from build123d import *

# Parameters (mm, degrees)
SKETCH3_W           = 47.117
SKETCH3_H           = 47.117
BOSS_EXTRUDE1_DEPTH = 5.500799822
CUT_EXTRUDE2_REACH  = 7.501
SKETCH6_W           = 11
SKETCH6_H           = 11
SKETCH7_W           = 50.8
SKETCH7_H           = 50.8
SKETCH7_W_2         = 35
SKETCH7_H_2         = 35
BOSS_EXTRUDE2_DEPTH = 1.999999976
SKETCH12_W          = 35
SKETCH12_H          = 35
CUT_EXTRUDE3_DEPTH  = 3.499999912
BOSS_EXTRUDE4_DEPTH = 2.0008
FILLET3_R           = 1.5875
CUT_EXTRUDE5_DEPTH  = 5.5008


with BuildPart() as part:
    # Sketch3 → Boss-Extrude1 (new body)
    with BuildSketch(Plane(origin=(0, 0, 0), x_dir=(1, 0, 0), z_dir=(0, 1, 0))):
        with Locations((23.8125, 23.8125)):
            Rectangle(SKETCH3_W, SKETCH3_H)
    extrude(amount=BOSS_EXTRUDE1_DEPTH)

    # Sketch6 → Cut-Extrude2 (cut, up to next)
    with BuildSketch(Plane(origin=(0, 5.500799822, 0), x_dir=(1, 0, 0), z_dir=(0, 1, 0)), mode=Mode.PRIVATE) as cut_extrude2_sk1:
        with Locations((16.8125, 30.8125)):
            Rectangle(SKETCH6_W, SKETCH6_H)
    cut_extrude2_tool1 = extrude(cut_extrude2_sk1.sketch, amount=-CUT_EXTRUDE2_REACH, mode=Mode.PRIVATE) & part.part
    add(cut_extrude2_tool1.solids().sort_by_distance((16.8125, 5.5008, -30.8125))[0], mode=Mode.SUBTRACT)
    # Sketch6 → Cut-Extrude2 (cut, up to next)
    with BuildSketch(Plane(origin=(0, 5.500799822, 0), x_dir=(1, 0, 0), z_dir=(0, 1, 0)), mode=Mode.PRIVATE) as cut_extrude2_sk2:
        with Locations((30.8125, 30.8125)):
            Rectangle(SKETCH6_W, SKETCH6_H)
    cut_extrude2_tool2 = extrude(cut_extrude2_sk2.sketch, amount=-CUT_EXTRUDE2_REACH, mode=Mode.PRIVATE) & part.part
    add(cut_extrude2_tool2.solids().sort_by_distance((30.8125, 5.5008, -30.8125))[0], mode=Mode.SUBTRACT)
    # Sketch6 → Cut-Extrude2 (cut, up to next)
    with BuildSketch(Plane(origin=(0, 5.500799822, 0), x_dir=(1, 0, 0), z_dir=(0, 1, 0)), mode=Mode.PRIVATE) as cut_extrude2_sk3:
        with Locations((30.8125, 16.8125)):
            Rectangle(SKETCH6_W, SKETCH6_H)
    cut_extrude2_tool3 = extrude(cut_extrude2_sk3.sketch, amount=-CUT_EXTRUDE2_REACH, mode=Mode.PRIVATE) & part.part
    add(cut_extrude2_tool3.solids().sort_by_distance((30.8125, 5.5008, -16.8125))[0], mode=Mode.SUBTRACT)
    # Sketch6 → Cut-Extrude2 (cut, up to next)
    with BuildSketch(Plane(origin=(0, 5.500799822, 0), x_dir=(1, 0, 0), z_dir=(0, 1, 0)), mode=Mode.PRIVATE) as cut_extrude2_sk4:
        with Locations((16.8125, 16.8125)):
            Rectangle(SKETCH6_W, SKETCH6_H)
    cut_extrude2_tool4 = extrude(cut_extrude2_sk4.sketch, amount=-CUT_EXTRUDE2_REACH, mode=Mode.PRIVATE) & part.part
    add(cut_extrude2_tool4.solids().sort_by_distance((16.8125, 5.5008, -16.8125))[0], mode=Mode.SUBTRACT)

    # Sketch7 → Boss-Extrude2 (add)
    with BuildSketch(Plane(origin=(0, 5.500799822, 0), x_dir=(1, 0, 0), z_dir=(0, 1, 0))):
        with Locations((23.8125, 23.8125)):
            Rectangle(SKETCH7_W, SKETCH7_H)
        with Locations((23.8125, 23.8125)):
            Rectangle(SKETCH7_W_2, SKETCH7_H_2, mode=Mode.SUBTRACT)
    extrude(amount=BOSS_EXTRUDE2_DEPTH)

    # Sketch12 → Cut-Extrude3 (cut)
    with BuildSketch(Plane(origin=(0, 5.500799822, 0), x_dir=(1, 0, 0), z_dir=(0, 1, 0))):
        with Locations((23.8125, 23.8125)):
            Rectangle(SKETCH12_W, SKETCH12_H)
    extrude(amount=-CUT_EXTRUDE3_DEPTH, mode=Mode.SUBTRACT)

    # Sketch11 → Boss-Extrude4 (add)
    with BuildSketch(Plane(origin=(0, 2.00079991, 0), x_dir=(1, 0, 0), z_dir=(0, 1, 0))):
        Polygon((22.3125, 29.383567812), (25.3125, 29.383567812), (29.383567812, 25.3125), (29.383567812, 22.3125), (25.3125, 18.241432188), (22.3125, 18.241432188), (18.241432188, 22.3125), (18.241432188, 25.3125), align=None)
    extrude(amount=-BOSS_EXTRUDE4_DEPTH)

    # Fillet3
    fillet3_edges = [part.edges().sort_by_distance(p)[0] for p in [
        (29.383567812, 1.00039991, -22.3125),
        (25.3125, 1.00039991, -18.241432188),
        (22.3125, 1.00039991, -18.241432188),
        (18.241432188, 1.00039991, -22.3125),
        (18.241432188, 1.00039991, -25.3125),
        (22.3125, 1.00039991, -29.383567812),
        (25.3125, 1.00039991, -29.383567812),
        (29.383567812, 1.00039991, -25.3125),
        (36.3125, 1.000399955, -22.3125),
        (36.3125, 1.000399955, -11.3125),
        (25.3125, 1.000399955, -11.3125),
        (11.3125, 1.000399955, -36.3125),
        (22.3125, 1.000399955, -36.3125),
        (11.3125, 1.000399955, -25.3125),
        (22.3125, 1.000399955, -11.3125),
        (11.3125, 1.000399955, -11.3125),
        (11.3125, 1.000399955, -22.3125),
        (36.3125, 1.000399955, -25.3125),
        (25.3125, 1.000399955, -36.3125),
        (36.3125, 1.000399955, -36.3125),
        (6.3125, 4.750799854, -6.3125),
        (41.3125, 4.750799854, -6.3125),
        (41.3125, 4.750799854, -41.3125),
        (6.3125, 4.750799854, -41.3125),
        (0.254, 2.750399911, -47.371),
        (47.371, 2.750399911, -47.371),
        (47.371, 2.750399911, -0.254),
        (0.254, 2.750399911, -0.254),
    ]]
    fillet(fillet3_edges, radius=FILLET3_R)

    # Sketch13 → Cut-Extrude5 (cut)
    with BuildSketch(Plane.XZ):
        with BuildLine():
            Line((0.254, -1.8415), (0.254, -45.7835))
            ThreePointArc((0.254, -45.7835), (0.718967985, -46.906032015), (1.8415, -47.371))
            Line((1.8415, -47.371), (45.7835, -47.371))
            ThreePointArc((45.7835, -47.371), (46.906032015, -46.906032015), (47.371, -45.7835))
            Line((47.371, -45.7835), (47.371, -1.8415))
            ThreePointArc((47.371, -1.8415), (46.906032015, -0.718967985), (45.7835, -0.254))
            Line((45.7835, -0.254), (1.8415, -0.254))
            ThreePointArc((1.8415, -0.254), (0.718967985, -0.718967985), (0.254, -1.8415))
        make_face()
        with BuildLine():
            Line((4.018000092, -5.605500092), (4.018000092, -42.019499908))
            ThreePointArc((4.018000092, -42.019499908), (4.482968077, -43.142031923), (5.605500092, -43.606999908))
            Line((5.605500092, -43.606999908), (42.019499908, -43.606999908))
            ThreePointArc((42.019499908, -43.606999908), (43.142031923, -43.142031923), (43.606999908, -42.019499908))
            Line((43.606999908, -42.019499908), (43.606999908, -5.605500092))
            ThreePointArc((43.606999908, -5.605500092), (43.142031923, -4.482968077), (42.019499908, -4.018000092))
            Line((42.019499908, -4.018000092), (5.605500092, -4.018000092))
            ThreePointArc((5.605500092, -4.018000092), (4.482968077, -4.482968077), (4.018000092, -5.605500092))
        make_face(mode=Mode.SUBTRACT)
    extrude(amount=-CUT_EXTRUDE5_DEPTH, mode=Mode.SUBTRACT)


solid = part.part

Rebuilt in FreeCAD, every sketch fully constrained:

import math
import FreeCAD as App
import Part
import Sketcher
from FreeCAD import Vector
Q = App.Units.Quantity


def edges_at(feature, points):
    """Names of the edges that pass closest to the given points."""
    edges = feature.Shape.Edges
    near = lambda p: min(range(len(edges)), key=lambda i: edges[i].distToShape(Part.Vertex(*p))[0])
    return sorted({f"Edge{near(p) + 1}" for p in points})

doc = App.newDocument("Part")
body = doc.addObject("PartDesign::Body", "Body")

# Sketch on XZ plane
sketch1 = doc.addObject("Sketcher::SketchObject", "Sketch")
body.addObject(sketch1)
sketch1.AttachmentSupport = (doc.XZ_Plane, [""])
sketch1.MapMode = "FlatFace"
sketch1.addGeometry([
    Part.LineSegment(Vector(0.254, -47.371, 0), Vector(0.254, -0.254, 0)),
    Part.LineSegment(Vector(0.254, -0.254, 0), Vector(47.371, -0.254, 0)),
    Part.LineSegment(Vector(47.371, -0.254, 0), Vector(47.371, -47.371, 0)),
    Part.LineSegment(Vector(47.371, -47.371, 0), Vector(0.254, -47.371, 0)),
], False)
sketch1.addConstraint([
    Sketcher.Constraint("Coincident", 0, 2, 1, 1),
    Sketcher.Constraint("Coincident", 1, 2, 2, 1),
    Sketcher.Constraint("Coincident", 2, 2, 3, 1),
    Sketcher.Constraint("Coincident", 3, 2, 0, 1),
    Sketcher.Constraint("Vertical", 0),
    Sketcher.Constraint("Horizontal", 1),
    Sketcher.Constraint("Vertical", 2),
    Sketcher.Constraint("Horizontal", 3),
    Sketcher.Constraint("Equal", 3, 0),
    Sketcher.Constraint("DistanceX", 1, 1, 1, 2, Q("47.117 mm")),
    Sketcher.Constraint("DistanceX", -1, 1, 0, 2, Q("0.254 mm")),
    Sketcher.Constraint("DistanceY", 0, 2, -1, 1, Q("0.254 mm")),
])
pad1 = doc.addObject("PartDesign::Pad", "Pad")
body.addObject(pad1)
pad1.Profile = sketch1
pad1.Length = 5.5008
pad1.Reversed = True

# Sketch on XZ plane
sketch2 = doc.addObject("Sketcher::SketchObject", "Sketch001")
body.addObject(sketch2)
sketch2.AttachmentSupport = (doc.XZ_Plane, [""])
sketch2.MapMode = "FlatFace"
sketch2.AttachmentOffset = App.Placement(Vector(0, 0, -5.5008), App.Rotation())
sketch2.addGeometry([
    Part.LineSegment(Vector(11.3125, -36.3125, 0), Vector(11.3125, -25.3125, 0)),
    Part.LineSegment(Vector(11.3125, -25.3125, 0), Vector(22.3125, -25.3125, 0)),
    Part.LineSegment(Vector(22.3125, -25.3125, 0), Vector(22.3125, -36.3125, 0)),
    Part.LineSegment(Vector(22.3125, -36.3125, 0), Vector(11.3125, -36.3125, 0)),
], False)
sketch2.addConstraint([
    Sketcher.Constraint("Coincident", 0, 2, 1, 1),
    Sketcher.Constraint("Coincident", 1, 2, 2, 1),
    Sketcher.Constraint("Coincident", 2, 2, 3, 1),
    Sketcher.Constraint("Coincident", 3, 2, 0, 1),
    Sketcher.Constraint("Vertical", 0),
    Sketcher.Constraint("Horizontal", 1),
    Sketcher.Constraint("Vertical", 2),
    Sketcher.Constraint("Horizontal", 3),
    Sketcher.Constraint("Equal", 3, 0),
    Sketcher.Constraint("DistanceX", 1, 1, 1, 2, Q("11 mm")),
    Sketcher.Constraint("DistanceX", -1, 1, 0, 2, Q("11.3125 mm")),
    Sketcher.Constraint("DistanceY", 0, 2, -1, 1, Q("25.3125 mm")),
])
pocket1 = doc.addObject("PartDesign::Pocket", "Pocket")
body.addObject(pocket1)
pocket1.Profile = sketch2
pocket1.Type = "UpToFirst"
pocket1.Reversed = True

# Sketch on XZ plane
sketch3 = doc.addObject("Sketcher::SketchObject", "Sketch002")
body.addObject(sketch3)
sketch3.AttachmentSupport = (doc.XZ_Plane, [""])
sketch3.MapMode = "FlatFace"
sketch3.AttachmentOffset = App.Placement(Vector(0, 0, -5.5008), App.Rotation())
sketch3.addGeometry([
    Part.LineSegment(Vector(25.3125, -36.3125, 0), Vector(25.3125, -25.3125, 0)),
    Part.LineSegment(Vector(25.3125, -25.3125, 0), Vector(36.3125, -25.3125, 0)),
    Part.LineSegment(Vector(36.3125, -25.3125, 0), Vector(36.3125, -36.3125, 0)),
    Part.LineSegment(Vector(36.3125, -36.3125, 0), Vector(25.3125, -36.3125, 0)),
], False)
sketch3.addConstraint([
    Sketcher.Constraint("Coincident", 0, 2, 1, 1),
    Sketcher.Constraint("Coincident", 1, 2, 2, 1),
    Sketcher.Constraint("Coincident", 2, 2, 3, 1),
    Sketcher.Constraint("Coincident", 3, 2, 0, 1),
    Sketcher.Constraint("Vertical", 0),
    Sketcher.Constraint("Horizontal", 1),
    Sketcher.Constraint("Vertical", 2),
    Sketcher.Constraint("Horizontal", 3),
    Sketcher.Constraint("Equal", 3, 0),
    Sketcher.Constraint("DistanceX", 1, 1, 1, 2, Q("11 mm")),
    Sketcher.Constraint("DistanceX", -1, 1, 0, 2, Q("25.3125 mm")),
    Sketcher.Constraint("DistanceY", 0, 2, -1, 1, Q("25.3125 mm")),
])
pocket2 = doc.addObject("PartDesign::Pocket", "Pocket001")
body.addObject(pocket2)
pocket2.Profile = sketch3
pocket2.Type = "UpToFirst"
pocket2.Reversed = True

# Sketch on XZ plane
sketch4 = doc.addObject("Sketcher::SketchObject", "Sketch003")
body.addObject(sketch4)
sketch4.AttachmentSupport = (doc.XZ_Plane, [""])
sketch4.MapMode = "FlatFace"
sketch4.AttachmentOffset = App.Placement(Vector(0, 0, -5.5008), App.Rotation())
sketch4.addGeometry([
    Part.LineSegment(Vector(25.3125, -22.3125, 0), Vector(25.3125, -11.3125, 0)),
    Part.LineSegment(Vector(25.3125, -11.3125, 0), Vector(36.3125, -11.3125, 0)),
    Part.LineSegment(Vector(36.3125, -11.3125, 0), Vector(36.3125, -22.3125, 0)),
    Part.LineSegment(Vector(36.3125, -22.3125, 0), Vector(25.3125, -22.3125, 0)),
], False)
sketch4.addConstraint([
    Sketcher.Constraint("Coincident", 0, 2, 1, 1),
    Sketcher.Constraint("Coincident", 1, 2, 2, 1),
    Sketcher.Constraint("Coincident", 2, 2, 3, 1),
    Sketcher.Constraint("Coincident", 3, 2, 0, 1),
    Sketcher.Constraint("Vertical", 0),
    Sketcher.Constraint("Horizontal", 1),
    Sketcher.Constraint("Vertical", 2),
    Sketcher.Constraint("Horizontal", 3),
    Sketcher.Constraint("Equal", 3, 0),
    Sketcher.Constraint("DistanceX", 1, 1, 1, 2, Q("11 mm")),
    Sketcher.Constraint("DistanceX", -1, 1, 0, 2, Q("25.3125 mm")),
    Sketcher.Constraint("DistanceY", 0, 2, -1, 1, Q("11.3125 mm")),
])
pocket3 = doc.addObject("PartDesign::Pocket", "Pocket002")
body.addObject(pocket3)
pocket3.Profile = sketch4
pocket3.Type = "UpToFirst"
pocket3.Reversed = True

# Sketch on XZ plane
sketch5 = doc.addObject("Sketcher::SketchObject", "Sketch004")
body.addObject(sketch5)
sketch5.AttachmentSupport = (doc.XZ_Plane, [""])
sketch5.MapMode = "FlatFace"
sketch5.AttachmentOffset = App.Placement(Vector(0, 0, -5.5008), App.Rotation())
sketch5.addGeometry([
    Part.LineSegment(Vector(11.3125, -22.3125, 0), Vector(11.3125, -11.3125, 0)),
    Part.LineSegment(Vector(11.3125, -11.3125, 0), Vector(22.3125, -11.3125, 0)),
    Part.LineSegment(Vector(22.3125, -11.3125, 0), Vector(22.3125, -22.3125, 0)),
    Part.LineSegment(Vector(22.3125, -22.3125, 0), Vector(11.3125, -22.3125, 0)),
], False)
sketch5.addConstraint([
    Sketcher.Constraint("Coincident", 0, 2, 1, 1),
    Sketcher.Constraint("Coincident", 1, 2, 2, 1),
    Sketcher.Constraint("Coincident", 2, 2, 3, 1),
    Sketcher.Constraint("Coincident", 3, 2, 0, 1),
    Sketcher.Constraint("Vertical", 0),
    Sketcher.Constraint("Horizontal", 1),
    Sketcher.Constraint("Vertical", 2),
    Sketcher.Constraint("Horizontal", 3),
    Sketcher.Constraint("Equal", 3, 0),
    Sketcher.Constraint("DistanceX", 1, 1, 1, 2, Q("11 mm")),
    Sketcher.Constraint("DistanceX", -1, 1, 0, 2, Q("11.3125 mm")),
    Sketcher.Constraint("DistanceY", 0, 2, -1, 1, Q("11.3125 mm")),
])
pocket4 = doc.addObject("PartDesign::Pocket", "Pocket003")
body.addObject(pocket4)
pocket4.Profile = sketch5
pocket4.Type = "UpToFirst"
pocket4.Reversed = True

# Sketch on XZ plane
sketch6 = doc.addObject("Sketcher::SketchObject", "Sketch005")
body.addObject(sketch6)
sketch6.AttachmentSupport = (doc.XZ_Plane, [""])
sketch6.MapMode = "FlatFace"
sketch6.AttachmentOffset = App.Placement(Vector(0, 0, -5.5008), App.Rotation())
sketch6.addGeometry([
    Part.LineSegment(Vector(-1.5875, -49.2125, 0), Vector(-1.5875, 1.5875, 0)),  # 0
    Part.LineSegment(Vector(-1.5875, 1.5875, 0), Vector(49.2125, 1.5875, 0)),  # 1
    Part.LineSegment(Vector(49.2125, 1.5875, 0), Vector(49.2125, -49.2125, 0)),  # 2
    Part.LineSegment(Vector(49.2125, -49.2125, 0), Vector(-1.5875, -49.2125, 0)),  # 3
    Part.LineSegment(Vector(41.3125, -6.3125, 0), Vector(6.3125, -6.3125, 0)),  # 4
    Part.LineSegment(Vector(6.3125, -6.3125, 0), Vector(6.3125, -41.3125, 0)),  # 5
    Part.LineSegment(Vector(6.3125, -41.3125, 0), Vector(41.3125, -41.3125, 0)),  # 6
    Part.LineSegment(Vector(41.3125, -41.3125, 0), Vector(41.3125, -6.3125, 0)),  # 7
], False)
sketch6.addConstraint([
    Sketcher.Constraint("Coincident", 0, 2, 1, 1),
    Sketcher.Constraint("Coincident", 1, 2, 2, 1),
    Sketcher.Constraint("Coincident", 2, 2, 3, 1),
    Sketcher.Constraint("Coincident", 3, 2, 0, 1),
    Sketcher.Constraint("Coincident", 4, 2, 5, 1),
    Sketcher.Constraint("Coincident", 5, 2, 6, 1),
    Sketcher.Constraint("Coincident", 6, 2, 7, 1),
    Sketcher.Constraint("Coincident", 7, 2, 4, 1),
    Sketcher.Constraint("Vertical", 0),
    Sketcher.Constraint("Horizontal", 1),
    Sketcher.Constraint("Vertical", 2),
    Sketcher.Constraint("Horizontal", 3),
    Sketcher.Constraint("Horizontal", 4),
    Sketcher.Constraint("Vertical", 5),
    Sketcher.Constraint("Horizontal", 6),
    Sketcher.Constraint("Vertical", 7),
    Sketcher.Constraint("Equal", 3, 0),
    Sketcher.Constraint("Equal", 6, 5),
    Sketcher.Constraint("DistanceX", 4, 2, 4, 1, Q("35 mm")),
    Sketcher.Constraint("DistanceX", 1, 1, 1, 2, Q("50.8 mm")),
    Sketcher.Constraint("DistanceX", 0, 2, 4, 2, Q("7.9 mm")),
    Sketcher.Constraint("DistanceY", 4, 2, 0, 2, Q("7.9 mm")),
    Sketcher.Constraint("DistanceX", 0, 2, -1, 1, Q("1.5875 mm")),
    Sketcher.Constraint("DistanceY", -1, 1, 0, 2, Q("1.5875 mm")),
])
pad2 = doc.addObject("PartDesign::Pad", "Pad001")
body.addObject(pad2)
pad2.Profile = sketch6
pad2.Length = 2
pad2.Reversed = True

# Sketch on XZ plane
sketch7 = doc.addObject("Sketcher::SketchObject", "Sketch006")
body.addObject(sketch7)
sketch7.AttachmentSupport = (doc.XZ_Plane, [""])
sketch7.MapMode = "FlatFace"
sketch7.AttachmentOffset = App.Placement(Vector(0, 0, -5.5008), App.Rotation())
sketch7.addGeometry([
    Part.LineSegment(Vector(6.3125, -41.3125, 0), Vector(6.3125, -6.3125, 0)),
    Part.LineSegment(Vector(6.3125, -6.3125, 0), Vector(41.3125, -6.3125, 0)),
    Part.LineSegment(Vector(41.3125, -6.3125, 0), Vector(41.3125, -41.3125, 0)),
    Part.LineSegment(Vector(41.3125, -41.3125, 0), Vector(6.3125, -41.3125, 0)),
], False)
sketch7.addConstraint([
    Sketcher.Constraint("Coincident", 0, 2, 1, 1),
    Sketcher.Constraint("Coincident", 1, 2, 2, 1),
    Sketcher.Constraint("Coincident", 2, 2, 3, 1),
    Sketcher.Constraint("Coincident", 3, 2, 0, 1),
    Sketcher.Constraint("Vertical", 0),
    Sketcher.Constraint("Horizontal", 1),
    Sketcher.Constraint("Vertical", 2),
    Sketcher.Constraint("Horizontal", 3),
    Sketcher.Constraint("Equal", 3, 0),
    Sketcher.Constraint("DistanceX", 1, 1, 1, 2, Q("35 mm")),
    Sketcher.Constraint("DistanceX", -1, 1, 0, 2, Q("6.3125 mm")),
    Sketcher.Constraint("DistanceY", 0, 2, -1, 1, Q("6.3125 mm")),
])
pocket5 = doc.addObject("PartDesign::Pocket", "Pocket004")
body.addObject(pocket5)
pocket5.Profile = sketch7
pocket5.Length = 3.5
pocket5.Reversed = True

# Sketch on XZ plane
sketch8 = doc.addObject("Sketcher::SketchObject", "Sketch007")
body.addObject(sketch8)
sketch8.AttachmentSupport = (doc.XZ_Plane, [""])
sketch8.MapMode = "FlatFace"
sketch8.AttachmentOffset = App.Placement(Vector(0, 0, -2.0008), App.Rotation())
sketch8.addGeometry([
    Part.LineSegment(Vector(25.3125, -29.383568, 0), Vector(22.3125, -29.383568, 0)),  # 0
    Part.LineSegment(Vector(22.3125, -29.383568, 0), Vector(18.241432, -25.3125, 0)),  # 1
    Part.LineSegment(Vector(18.241432, -25.3125, 0), Vector(18.241432, -22.3125, 0)),  # 2
    Part.LineSegment(Vector(18.241432, -22.3125, 0), Vector(22.3125, -18.241432, 0)),  # 3
    Part.LineSegment(Vector(22.3125, -18.241432, 0), Vector(25.3125, -18.241432, 0)),  # 4
    Part.LineSegment(Vector(25.3125, -18.241432, 0), Vector(29.383568, -22.3125, 0)),  # 5
    Part.LineSegment(Vector(29.383568, -22.3125, 0), Vector(29.383568, -25.3125, 0)),  # 6
    Part.LineSegment(Vector(29.383568, -25.3125, 0), Vector(25.3125, -29.383568, 0)),  # 7
], False)
sketch8.addConstraint([
    Sketcher.Constraint("Coincident", 0, 2, 1, 1),
    Sketcher.Constraint("Coincident", 1, 2, 2, 1),
    Sketcher.Constraint("Coincident", 2, 2, 3, 1),
    Sketcher.Constraint("Coincident", 3, 2, 4, 1),
    Sketcher.Constraint("Coincident", 4, 2, 5, 1),
    Sketcher.Constraint("Coincident", 5, 2, 6, 1),
    Sketcher.Constraint("Coincident", 6, 2, 7, 1),
    Sketcher.Constraint("Coincident", 7, 2, 0, 1),
    Sketcher.Constraint("Horizontal", 0),
    Sketcher.Constraint("Vertical", 2),
    Sketcher.Constraint("Horizontal", 4),
    Sketcher.Constraint("Vertical", 6),
    Sketcher.Constraint("Perpendicular", 1, 3),
    Sketcher.Constraint("Perpendicular", 3, 5),
    Sketcher.Constraint("Perpendicular", 5, 7),
    Sketcher.Constraint("Horizontal", 2, 2, 5, 2),
    Sketcher.Constraint("Horizontal", 1, 2, 6, 2),
    Sketcher.Constraint("Vertical", 0, 2, 3, 2),
    Sketcher.Constraint("Vertical", 4, 2, 7, 2),
    Sketcher.Constraint("Equal", 4, 2),
    Sketcher.Constraint("DistanceX", 0, 2, 0, 1, Q("3 mm")),
    Sketcher.Constraint("DistanceX", -1, 1, 0, 2, Q("22.3125 mm")),
    Sketcher.Constraint("DistanceY", 1, 2, -1, 1, Q("25.3125 mm")),
    Sketcher.Constraint("Distance", 1, Q("5.757359 mm")),
])
pad3 = doc.addObject("PartDesign::Pad", "Pad002")
body.addObject(pad3)
pad3.Profile = sketch8
pad3.Length = 2.0008
doc.recompute()

fillet = doc.addObject("PartDesign::Fillet", "Fillet")
body.addObject(fillet)
fillet.Base = (pad3, edges_at(pad3, [
    (29.384, 1, -22.312),
    (25.312, 1, -18.241),
    (22.312, 1, -18.241),
    (18.241, 1, -22.312),
    (18.241, 1, -25.312),
    (22.312, 1, -29.384),
    (25.312, 1, -29.384),
    (29.384, 1, -25.312),
    (36.312, 1, -22.312),
    (36.312, 1, -11.312),
    (25.312, 1, -11.312),
    (11.312, 1, -36.312),
    (22.312, 1, -36.312),
    (11.312, 1, -25.312),
    (22.312, 1, -11.312),
    (11.312, 1, -11.312),
    (11.312, 1, -22.312),
    (36.312, 1, -25.312),
    (25.312, 1, -36.312),
    (36.312, 1, -36.312),
    (6.312, 4.751, -6.312),
    (41.312, 4.751, -6.312),
    (41.312, 4.751, -41.312),
    (6.312, 4.751, -41.312),
    (0.254, 2.75, -47.371),
    (47.371, 2.75, -47.371),
    (47.371, 2.75, -0.254),
    (0.254, 2.75, -0.254),
]))
fillet.Radius = 1.5875

# Sketch on XZ plane
sketch9 = doc.addObject("Sketcher::SketchObject", "Sketch008")
body.addObject(sketch9)
sketch9.AttachmentSupport = (doc.XZ_Plane, [""])
sketch9.MapMode = "FlatFace"
sketch9.addGeometry([
    Part.LineSegment(Vector(0.254, -1.8415, 0), Vector(0.254, -45.7835, 0)),  # 0
    Part.ArcOfCircle(Part.Circle(Vector(1.8415, -45.7835, 0), Vector(0, 0, 1), 1.5875), math.radians(180), math.radians(270)),  # 1
    Part.LineSegment(Vector(1.8415, -47.371, 0), Vector(45.7835, -47.371, 0)),  # 2
    Part.ArcOfCircle(Part.Circle(Vector(45.7835, -45.7835, 0), Vector(0, 0, 1), 1.5875), math.radians(-90), math.radians(0)),  # 3
    Part.LineSegment(Vector(47.371, -45.7835, 0), Vector(47.371, -1.8415, 0)),  # 4
    Part.ArcOfCircle(Part.Circle(Vector(45.7835, -1.8415, 0), Vector(0, 0, 1), 1.5875), math.radians(0), math.radians(90)),  # 5
    Part.LineSegment(Vector(45.7835, -0.254, 0), Vector(1.8415, -0.254, 0)),  # 6
    Part.ArcOfCircle(Part.Circle(Vector(1.8415, -1.8415, 0), Vector(0, 0, 1), 1.5875), math.radians(90), math.radians(180)),  # 7
    Part.LineSegment(Vector(4.018, -42.0195, 0), Vector(4.018, -5.6055, 0)),  # 8
    Part.ArcOfCircle(Part.Circle(Vector(5.6055, -5.6055, 0), Vector(0, 0, 1), 1.5875), math.radians(90), math.radians(180)),  # 9
    Part.LineSegment(Vector(5.6055, -4.018, 0), Vector(42.0195, -4.018, 0)),  # 10
    Part.ArcOfCircle(Part.Circle(Vector(42.0195, -5.6055, 0), Vector(0, 0, 1), 1.5875), math.radians(0), math.radians(90)),  # 11
    Part.LineSegment(Vector(43.607, -5.6055, 0), Vector(43.607, -42.0195, 0)),  # 12
    Part.ArcOfCircle(Part.Circle(Vector(42.0195, -42.0195, 0), Vector(0, 0, 1), 1.5875), math.radians(-90), math.radians(0)),  # 13
    Part.LineSegment(Vector(42.0195, -43.607, 0), Vector(5.6055, -43.607, 0)),  # 14
    Part.ArcOfCircle(Part.Circle(Vector(5.6055, -42.0195, 0), Vector(0, 0, 1), 1.5875), math.radians(180), math.radians(270)),  # 15
], False)
sketch9.addConstraint([
    Sketcher.Constraint("Tangent", 0, 2, 1, 1),
    Sketcher.Constraint("Tangent", 1, 2, 2, 1),
    Sketcher.Constraint("Tangent", 2, 2, 3, 1),
    Sketcher.Constraint("Tangent", 3, 2, 4, 1),
    Sketcher.Constraint("Tangent", 4, 2, 5, 1),
    Sketcher.Constraint("Tangent", 5, 2, 6, 1),
    Sketcher.Constraint("Tangent", 6, 2, 7, 1),
    Sketcher.Constraint("Tangent", 7, 2, 0, 1),
    Sketcher.Constraint("Tangent", 8, 2, 9, 2),
    Sketcher.Constraint("Tangent", 9, 1, 10, 1),
    Sketcher.Constraint("Tangent", 10, 2, 11, 2),
    Sketcher.Constraint("Tangent", 11, 1, 12, 1),
    Sketcher.Constraint("Tangent", 12, 2, 13, 2),
    Sketcher.Constraint("Tangent", 13, 1, 14, 1),
    Sketcher.Constraint("Tangent", 14, 2, 15, 2),
    Sketcher.Constraint("Tangent", 15, 1, 8, 1),
    Sketcher.Constraint("Vertical", 0),
    Sketcher.Constraint("Horizontal", 2),
    Sketcher.Constraint("Vertical", 4),
    Sketcher.Constraint("Horizontal", 6),
    Sketcher.Constraint("Vertical", 8),
    Sketcher.Constraint("Horizontal", 10),
    Sketcher.Constraint("Vertical", 12),
    Sketcher.Constraint("Horizontal", 14),
    Sketcher.Constraint("Equal", 1, 3),
    Sketcher.Constraint("Equal", 3, 5),
    Sketcher.Constraint("Equal", 5, 7),
    Sketcher.Constraint("Equal", 7, 9),
    Sketcher.Constraint("Equal", 9, 11),
    Sketcher.Constraint("Equal", 11, 13),
    Sketcher.Constraint("Equal", 13, 15),
    Sketcher.Constraint("Equal", 6, 0),
    Sketcher.Constraint("Equal", 14, 8),
    Sketcher.Constraint("Radius", 1, Q("1.5875 mm")),
    Sketcher.Constraint("DistanceX", 2, 1, 2, 2, Q("43.942 mm")),
    Sketcher.Constraint("DistanceX", 10, 1, 10, 2, Q("36.414 mm")),
    Sketcher.Constraint("DistanceX", -1, 1, 0, 2, Q("0.254 mm")),
    Sketcher.Constraint("DistanceY", 1, 2, -1, 1, Q("47.371 mm")),
    Sketcher.Constraint("DistanceX", -1, 1, 8, 2, Q("4.018 mm")),
    Sketcher.Constraint("DistanceY", 9, 1, -1, 1, Q("4.018 mm")),
])
pocket6 = doc.addObject("PartDesign::Pocket", "Pocket005")
body.addObject(pocket6)
pocket6.Profile = sketch9
pocket6.Length = 5.5008

doc.recompute()
